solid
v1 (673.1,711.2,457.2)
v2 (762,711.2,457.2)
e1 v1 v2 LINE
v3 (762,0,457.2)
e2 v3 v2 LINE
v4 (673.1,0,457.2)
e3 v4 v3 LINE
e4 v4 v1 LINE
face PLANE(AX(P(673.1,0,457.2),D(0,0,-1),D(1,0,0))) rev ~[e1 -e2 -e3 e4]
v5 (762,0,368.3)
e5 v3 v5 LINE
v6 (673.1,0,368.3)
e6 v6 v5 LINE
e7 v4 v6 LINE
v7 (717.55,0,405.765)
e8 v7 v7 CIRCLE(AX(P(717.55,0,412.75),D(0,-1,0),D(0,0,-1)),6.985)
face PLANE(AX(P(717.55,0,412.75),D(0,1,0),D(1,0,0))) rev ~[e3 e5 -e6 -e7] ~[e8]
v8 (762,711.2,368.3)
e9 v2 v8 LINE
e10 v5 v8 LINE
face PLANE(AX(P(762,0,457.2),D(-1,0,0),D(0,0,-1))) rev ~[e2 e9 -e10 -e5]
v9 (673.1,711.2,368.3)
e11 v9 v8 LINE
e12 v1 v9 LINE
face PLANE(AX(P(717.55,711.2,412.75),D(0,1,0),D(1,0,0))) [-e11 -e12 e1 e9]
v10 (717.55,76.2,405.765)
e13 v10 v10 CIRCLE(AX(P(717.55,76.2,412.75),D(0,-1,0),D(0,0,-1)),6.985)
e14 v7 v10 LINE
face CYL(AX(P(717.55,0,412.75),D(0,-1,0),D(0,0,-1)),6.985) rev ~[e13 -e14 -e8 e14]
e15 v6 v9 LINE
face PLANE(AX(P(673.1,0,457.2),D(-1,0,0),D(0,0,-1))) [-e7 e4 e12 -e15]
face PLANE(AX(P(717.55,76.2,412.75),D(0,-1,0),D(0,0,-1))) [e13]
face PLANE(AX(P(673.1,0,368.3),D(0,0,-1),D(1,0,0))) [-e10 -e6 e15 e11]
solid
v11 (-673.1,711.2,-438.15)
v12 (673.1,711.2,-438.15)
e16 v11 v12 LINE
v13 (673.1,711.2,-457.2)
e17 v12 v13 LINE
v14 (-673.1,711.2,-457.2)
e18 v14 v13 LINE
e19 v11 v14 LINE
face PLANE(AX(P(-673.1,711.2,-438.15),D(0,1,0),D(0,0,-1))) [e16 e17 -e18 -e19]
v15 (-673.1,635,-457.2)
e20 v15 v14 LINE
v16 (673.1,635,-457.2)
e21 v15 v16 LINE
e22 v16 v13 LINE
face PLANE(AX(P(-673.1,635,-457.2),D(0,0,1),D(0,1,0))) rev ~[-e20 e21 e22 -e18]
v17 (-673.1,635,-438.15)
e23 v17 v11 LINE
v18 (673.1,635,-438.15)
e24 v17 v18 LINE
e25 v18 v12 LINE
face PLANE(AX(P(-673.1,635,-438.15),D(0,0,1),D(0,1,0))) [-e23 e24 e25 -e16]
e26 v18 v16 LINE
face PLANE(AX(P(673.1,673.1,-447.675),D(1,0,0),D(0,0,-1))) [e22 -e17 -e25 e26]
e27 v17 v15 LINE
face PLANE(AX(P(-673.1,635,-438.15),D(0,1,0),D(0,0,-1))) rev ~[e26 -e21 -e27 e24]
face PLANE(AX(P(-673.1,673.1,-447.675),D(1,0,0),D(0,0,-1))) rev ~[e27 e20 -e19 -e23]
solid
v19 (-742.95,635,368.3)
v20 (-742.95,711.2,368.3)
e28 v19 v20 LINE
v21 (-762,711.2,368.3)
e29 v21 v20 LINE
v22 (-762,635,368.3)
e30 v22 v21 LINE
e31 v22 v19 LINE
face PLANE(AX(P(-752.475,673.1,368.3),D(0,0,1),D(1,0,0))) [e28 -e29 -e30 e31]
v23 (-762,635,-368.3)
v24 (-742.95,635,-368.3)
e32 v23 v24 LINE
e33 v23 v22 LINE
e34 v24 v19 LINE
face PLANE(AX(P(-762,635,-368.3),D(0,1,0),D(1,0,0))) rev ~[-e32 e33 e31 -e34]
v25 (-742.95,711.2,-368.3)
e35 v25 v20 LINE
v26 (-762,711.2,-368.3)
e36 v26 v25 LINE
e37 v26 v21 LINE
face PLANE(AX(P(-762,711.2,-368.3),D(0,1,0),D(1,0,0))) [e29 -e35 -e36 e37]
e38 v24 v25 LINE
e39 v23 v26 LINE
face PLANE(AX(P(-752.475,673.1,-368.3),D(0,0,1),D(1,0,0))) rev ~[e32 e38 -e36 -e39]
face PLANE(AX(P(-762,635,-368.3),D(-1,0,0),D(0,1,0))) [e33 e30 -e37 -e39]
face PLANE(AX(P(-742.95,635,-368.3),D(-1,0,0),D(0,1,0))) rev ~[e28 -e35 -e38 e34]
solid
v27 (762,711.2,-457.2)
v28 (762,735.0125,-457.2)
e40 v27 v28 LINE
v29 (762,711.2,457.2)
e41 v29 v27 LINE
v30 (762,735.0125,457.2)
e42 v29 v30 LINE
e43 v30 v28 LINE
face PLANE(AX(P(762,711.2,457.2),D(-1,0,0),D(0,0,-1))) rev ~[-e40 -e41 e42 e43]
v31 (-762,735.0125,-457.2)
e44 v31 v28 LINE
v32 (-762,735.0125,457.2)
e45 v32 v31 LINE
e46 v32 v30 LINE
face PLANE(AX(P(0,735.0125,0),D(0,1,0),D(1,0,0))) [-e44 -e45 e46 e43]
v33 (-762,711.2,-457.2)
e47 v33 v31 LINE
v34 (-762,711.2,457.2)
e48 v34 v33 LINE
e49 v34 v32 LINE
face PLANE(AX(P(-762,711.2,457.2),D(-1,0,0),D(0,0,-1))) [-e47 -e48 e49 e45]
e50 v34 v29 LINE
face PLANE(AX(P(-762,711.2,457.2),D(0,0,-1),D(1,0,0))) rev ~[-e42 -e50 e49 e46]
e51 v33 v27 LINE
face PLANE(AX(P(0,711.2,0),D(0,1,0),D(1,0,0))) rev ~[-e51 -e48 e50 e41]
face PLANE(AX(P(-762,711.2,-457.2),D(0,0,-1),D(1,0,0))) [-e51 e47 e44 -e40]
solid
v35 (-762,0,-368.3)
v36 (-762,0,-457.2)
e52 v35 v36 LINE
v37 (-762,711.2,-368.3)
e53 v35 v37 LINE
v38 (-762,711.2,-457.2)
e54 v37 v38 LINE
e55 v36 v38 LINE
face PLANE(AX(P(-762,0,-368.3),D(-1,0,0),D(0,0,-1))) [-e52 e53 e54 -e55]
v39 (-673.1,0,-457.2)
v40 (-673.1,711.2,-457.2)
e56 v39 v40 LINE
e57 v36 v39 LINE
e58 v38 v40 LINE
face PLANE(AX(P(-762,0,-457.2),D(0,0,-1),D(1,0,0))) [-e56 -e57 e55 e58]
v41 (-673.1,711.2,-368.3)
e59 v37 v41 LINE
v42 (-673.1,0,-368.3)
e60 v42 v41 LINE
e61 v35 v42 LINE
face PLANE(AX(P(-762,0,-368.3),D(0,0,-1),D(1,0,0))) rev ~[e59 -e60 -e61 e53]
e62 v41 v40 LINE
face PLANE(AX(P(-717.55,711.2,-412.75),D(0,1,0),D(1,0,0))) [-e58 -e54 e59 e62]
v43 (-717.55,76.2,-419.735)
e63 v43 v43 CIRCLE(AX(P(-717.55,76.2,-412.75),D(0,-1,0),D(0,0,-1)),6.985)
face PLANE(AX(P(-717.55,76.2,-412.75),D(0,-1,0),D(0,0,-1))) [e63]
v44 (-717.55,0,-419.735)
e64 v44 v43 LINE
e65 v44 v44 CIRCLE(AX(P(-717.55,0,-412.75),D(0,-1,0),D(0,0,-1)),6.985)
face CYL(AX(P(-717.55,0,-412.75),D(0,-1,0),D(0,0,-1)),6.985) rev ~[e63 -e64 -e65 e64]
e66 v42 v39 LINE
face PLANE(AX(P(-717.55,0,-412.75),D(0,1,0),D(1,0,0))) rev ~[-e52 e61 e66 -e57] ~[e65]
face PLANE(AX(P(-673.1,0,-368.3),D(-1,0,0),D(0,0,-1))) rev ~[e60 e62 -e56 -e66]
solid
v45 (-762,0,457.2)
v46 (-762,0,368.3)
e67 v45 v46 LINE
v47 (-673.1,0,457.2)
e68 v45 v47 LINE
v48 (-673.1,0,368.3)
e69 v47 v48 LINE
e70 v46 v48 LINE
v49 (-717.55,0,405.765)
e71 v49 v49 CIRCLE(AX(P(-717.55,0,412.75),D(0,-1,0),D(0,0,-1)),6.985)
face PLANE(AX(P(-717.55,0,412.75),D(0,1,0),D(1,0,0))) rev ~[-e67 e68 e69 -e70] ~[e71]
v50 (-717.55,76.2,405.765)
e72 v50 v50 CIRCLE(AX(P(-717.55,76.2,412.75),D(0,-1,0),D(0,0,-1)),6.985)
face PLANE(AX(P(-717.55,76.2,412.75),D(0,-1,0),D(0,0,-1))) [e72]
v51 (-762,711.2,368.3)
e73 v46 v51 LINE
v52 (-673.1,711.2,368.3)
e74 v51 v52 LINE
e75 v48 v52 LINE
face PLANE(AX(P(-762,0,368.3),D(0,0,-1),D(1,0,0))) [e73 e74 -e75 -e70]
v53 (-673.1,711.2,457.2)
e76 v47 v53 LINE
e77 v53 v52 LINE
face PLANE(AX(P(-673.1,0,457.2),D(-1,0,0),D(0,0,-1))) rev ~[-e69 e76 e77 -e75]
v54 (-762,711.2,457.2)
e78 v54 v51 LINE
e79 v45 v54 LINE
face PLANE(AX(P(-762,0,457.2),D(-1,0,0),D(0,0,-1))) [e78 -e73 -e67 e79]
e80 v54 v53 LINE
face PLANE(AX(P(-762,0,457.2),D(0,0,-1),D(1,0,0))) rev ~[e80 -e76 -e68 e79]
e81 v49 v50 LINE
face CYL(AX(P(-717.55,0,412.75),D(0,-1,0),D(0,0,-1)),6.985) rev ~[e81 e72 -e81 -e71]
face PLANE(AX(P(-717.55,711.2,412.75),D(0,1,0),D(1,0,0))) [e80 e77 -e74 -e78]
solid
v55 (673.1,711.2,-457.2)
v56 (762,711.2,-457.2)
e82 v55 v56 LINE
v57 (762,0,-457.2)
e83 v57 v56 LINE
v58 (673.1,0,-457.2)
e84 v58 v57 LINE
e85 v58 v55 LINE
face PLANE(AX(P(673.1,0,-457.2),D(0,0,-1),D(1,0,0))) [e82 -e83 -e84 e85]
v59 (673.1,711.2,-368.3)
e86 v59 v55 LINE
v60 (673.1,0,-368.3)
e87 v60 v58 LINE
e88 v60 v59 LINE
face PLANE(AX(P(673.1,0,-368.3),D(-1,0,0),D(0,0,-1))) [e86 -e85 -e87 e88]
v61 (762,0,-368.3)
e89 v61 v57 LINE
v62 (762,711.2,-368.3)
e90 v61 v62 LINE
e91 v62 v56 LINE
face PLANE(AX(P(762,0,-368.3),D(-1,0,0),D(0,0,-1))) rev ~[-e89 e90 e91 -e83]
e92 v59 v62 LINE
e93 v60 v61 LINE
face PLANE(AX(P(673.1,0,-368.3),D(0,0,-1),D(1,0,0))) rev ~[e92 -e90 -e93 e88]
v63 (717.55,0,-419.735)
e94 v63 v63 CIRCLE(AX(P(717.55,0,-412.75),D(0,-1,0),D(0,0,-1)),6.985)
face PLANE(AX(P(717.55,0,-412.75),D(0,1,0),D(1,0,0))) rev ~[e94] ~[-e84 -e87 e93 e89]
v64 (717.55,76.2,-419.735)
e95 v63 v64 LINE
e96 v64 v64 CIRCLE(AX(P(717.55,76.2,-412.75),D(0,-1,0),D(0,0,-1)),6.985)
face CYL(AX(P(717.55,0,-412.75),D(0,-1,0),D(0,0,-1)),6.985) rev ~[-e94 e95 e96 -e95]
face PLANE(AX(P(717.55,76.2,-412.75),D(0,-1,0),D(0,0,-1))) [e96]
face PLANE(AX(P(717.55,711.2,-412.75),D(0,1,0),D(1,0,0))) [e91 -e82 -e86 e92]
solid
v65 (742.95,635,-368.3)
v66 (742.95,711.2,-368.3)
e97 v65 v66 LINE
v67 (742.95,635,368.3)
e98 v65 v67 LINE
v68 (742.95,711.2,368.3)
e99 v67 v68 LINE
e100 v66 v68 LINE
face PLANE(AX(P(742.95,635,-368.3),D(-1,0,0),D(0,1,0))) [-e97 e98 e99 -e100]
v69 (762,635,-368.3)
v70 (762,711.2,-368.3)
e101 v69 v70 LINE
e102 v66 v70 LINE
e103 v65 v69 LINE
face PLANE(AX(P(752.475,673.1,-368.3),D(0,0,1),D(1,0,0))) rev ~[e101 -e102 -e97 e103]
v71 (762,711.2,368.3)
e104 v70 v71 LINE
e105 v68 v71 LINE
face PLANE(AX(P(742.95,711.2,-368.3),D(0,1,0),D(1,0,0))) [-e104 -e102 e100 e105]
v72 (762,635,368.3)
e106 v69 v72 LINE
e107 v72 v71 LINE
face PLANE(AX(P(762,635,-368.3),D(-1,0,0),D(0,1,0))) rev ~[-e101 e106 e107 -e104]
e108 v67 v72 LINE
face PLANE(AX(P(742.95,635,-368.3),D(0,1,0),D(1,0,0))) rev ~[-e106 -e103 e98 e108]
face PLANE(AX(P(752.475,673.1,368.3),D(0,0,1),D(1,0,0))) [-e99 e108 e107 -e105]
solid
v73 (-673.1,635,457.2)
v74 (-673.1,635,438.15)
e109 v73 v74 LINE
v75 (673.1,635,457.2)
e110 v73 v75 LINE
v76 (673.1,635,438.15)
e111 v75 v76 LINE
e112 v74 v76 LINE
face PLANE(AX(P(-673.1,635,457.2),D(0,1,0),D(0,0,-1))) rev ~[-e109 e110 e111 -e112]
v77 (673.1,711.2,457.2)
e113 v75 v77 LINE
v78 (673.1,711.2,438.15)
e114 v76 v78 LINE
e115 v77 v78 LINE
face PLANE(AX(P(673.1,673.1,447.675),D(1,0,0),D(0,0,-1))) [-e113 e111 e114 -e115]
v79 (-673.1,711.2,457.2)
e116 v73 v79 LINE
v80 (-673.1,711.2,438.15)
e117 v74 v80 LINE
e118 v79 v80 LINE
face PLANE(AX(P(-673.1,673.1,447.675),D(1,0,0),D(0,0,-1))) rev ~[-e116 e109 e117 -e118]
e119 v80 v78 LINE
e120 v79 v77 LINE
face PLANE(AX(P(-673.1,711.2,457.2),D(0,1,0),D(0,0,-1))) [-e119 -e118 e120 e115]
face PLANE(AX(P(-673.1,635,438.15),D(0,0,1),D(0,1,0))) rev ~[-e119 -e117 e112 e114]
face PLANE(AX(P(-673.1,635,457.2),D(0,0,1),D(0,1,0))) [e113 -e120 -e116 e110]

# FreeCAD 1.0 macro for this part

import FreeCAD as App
import Part
import Sketcher

V = App.Vector
Q = App.Units.Quantity


def add_polygon(sketch, points):
    """Adds a closed chain of lines whose ends are joined by coincident constraints."""
    first, n = sketch.GeometryCount, len(points)
    for a, b in zip(points, points[1:] + points[:1]):
        sketch.addGeometry(Part.LineSegment(App.Vector(*a, 0), App.Vector(*b, 0)), False)
    for i in range(n):
        sketch.addConstraint(Sketcher.Constraint("Coincident", first + i, 2, first + (i + 1) % n, 1))

doc = App.newDocument("Part")
params = doc.addObject("Spreadsheet::Sheet", "Params")
for row, (alias, value) in enumerate([
    ("sketch1_width", "3.5 in"),
    ("pad1_length", "28 in"),
    ("sketch2_width", "3.5 in"),
    ("pad2_length", "28 in"),
    ("sketch3_width", "3.5 in"),
    ("pad3_length", "28 in"),
    ("sketch4_width", "3.5 in"),
    ("pad4_length", "28 in"),
    ("sketch5_width", "60 in"),
    ("sketch5_height", "36 in"),
    ("pad5_length", "0.9375 in"),
    ("sketch6_height", "3 in"),
    ("sketch6_width", "0.75 in"),
    ("pad6_length", "29 in"),
    ("sketch7_height", "3 in"),
    ("sketch7_width", "0.75 in"),
    ("pad7_length", "29 in"),
    ("sketch8_width", "3 in"),
    ("sketch8_height", "0.75 in"),
    ("pad8_length", "53 in"),
    ("sketch9_width", "3 in"),
    ("sketch9_height", "0.75 in"),
    ("pad9_length", "53 in"),
    ("sketch10_diameter", "0.55 in"),
    ("pad10_length", "3 in"),
], start=1):
    params.set(f"A{row}", alias)
    params.set(f"B{row}", "=" + value)
    params.setAlias(f"B{row}", alias)

body = doc.addObject("PartDesign::Body", "Body")

# Sketch on XZ plane
sketch1 = body.newObject("Sketcher::SketchObject", "Sketch")
sketch1.AttachmentSupport = (doc.getObject("XZ_Plane"), [""])
sketch1.MapMode = "FlatFace"
add_polygon(sketch1, [(-762, -457), (-762, -368), (-673, -368), (-673, -457)])  # lines 0-3
sketch1.addConstraint(Sketcher.Constraint("Vertical", 0))
sketch1.addConstraint(Sketcher.Constraint("Horizontal", 1))
sketch1.addConstraint(Sketcher.Constraint("Vertical", 2))
sketch1.addConstraint(Sketcher.Constraint("Horizontal", 3))
sketch1.addConstraint(Sketcher.Constraint("Equal", 3, 0))
sketch1.addConstraint(Sketcher.Constraint("DistanceX", 1, 1, 1, 2, Q("3.5 in")))
sketch1.addConstraint(Sketcher.Constraint("DistanceX", 0, 2, -1, 1, Q("30 in")))
sketch1.addConstraint(Sketcher.Constraint("DistanceY", 2, 2, -1, 1, Q("18 in")))
sketch1.setExpression("Constraints[9]", "Params.sketch1_width")
pad1 = body.newObject("PartDesign::Pad", "Pad")
pad1.Profile = sketch1
pad1.setExpression("Length", "Params.pad1_length")
pad1.Reversed = True
body2 = doc.addObject("PartDesign::Body", "Body001")

# Sketch on XZ plane
sketch2 = body2.newObject("Sketcher::SketchObject", "Sketch001")
sketch2.AttachmentSupport = (doc.getObject("XZ_Plane001"), [""])
sketch2.MapMode = "FlatFace"
add_polygon(sketch2, [(673, -457), (673, -368), (762, -368), (762, -457)])  # lines 0-3
sketch2.addConstraint(Sketcher.Constraint("Vertical", 0))
sketch2.addConstraint(Sketcher.Constraint("Horizontal", 1))
sketch2.addConstraint(Sketcher.Constraint("Vertical", 2))
sketch2.addConstraint(Sketcher.Constraint("Horizontal", 3))
sketch2.addConstraint(Sketcher.Constraint("Equal", 3, 0))
sketch2.addConstraint(Sketcher.Constraint("DistanceX", 1, 1, 1, 2, Q("3.5 in")))
sketch2.addConstraint(Sketcher.Constraint("DistanceX", -1, 1, 1, 2, Q("30 in")))
sketch2.addConstraint(Sketcher.Constraint("DistanceY", 2, 2, -1, 1, Q("18 in")))
sketch2.setExpression("Constraints[9]", "Params.sketch2_width")
pad2 = body2.newObject("PartDesign::Pad", "Pad001")
pad2.Profile = sketch2
pad2.setExpression("Length", "Params.pad2_length")
pad2.Reversed = True
body3 = doc.addObject("PartDesign::Body", "Body002")

# Sketch on XZ plane
sketch3 = body3.newObject("Sketcher::SketchObject", "Sketch002")
sketch3.AttachmentSupport = (doc.getObject("XZ_Plane002"), [""])
sketch3.MapMode = "FlatFace"
add_polygon(sketch3, [(673, 368), (673, 457), (762, 457), (762, 368)])  # lines 0-3
sketch3.addConstraint(Sketcher.Constraint("Vertical", 0))
sketch3.addConstraint(Sketcher.Constraint("Horizontal", 1))
sketch3.addConstraint(Sketcher.Constraint("Vertical", 2))
sketch3.addConstraint(Sketcher.Constraint("Horizontal", 3))
sketch3.addConstraint(Sketcher.Constraint("Equal", 3, 0))
sketch3.addConstraint(Sketcher.Constraint("DistanceX", 1, 1, 1, 2, Q("3.5 in")))
sketch3.addConstraint(Sketcher.Constraint("DistanceY", -1, 1, 0, 2, Q("18 in")))
sketch3.addConstraint(Sketcher.Constraint("DistanceX", -1, 1, 1, 2, Q("30 in")))
sketch3.setExpression("Constraints[9]", "Params.sketch3_width")
pad3 = body3.newObject("PartDesign::Pad", "Pad002")
pad3.Profile = sketch3
pad3.setExpression("Length", "Params.pad3_length")
pad3.Reversed = True
body4 = doc.addObject("PartDesign::Body", "Body003")

# Sketch on XZ plane
sketch4 = body4.newObject("Sketcher::SketchObject", "Sketch003")
sketch4.AttachmentSupport = (doc.getObject("XZ_Plane003"), [""])
sketch4.MapMode = "FlatFace"
add_polygon(sketch4, [(-762, 368), (-762, 457), (-673, 457), (-673, 368)])  # lines 0-3
sketch4.addConstraint(Sketcher.Constraint("Vertical", 0))
sketch4.addConstraint(Sketcher.Constraint("Horizontal", 1))
sketch4.addConstraint(Sketcher.Constraint("Vertical", 2))
sketch4.addConstraint(Sketcher.Constraint("Horizontal", 3))
sketch4.addConstraint(Sketcher.Constraint("Equal", 3, 0))
sketch4.addConstraint(Sketcher.Constraint("DistanceX", 1, 1, 1, 2, Q("3.5 in")))
sketch4.addConstraint(Sketcher.Constraint("DistanceX", 0, 2, -1, 1, Q("30 in")))
sketch4.addConstraint(Sketcher.Constraint("DistanceY", -1, 1, 0, 2, Q("18 in")))
sketch4.setExpression("Constraints[9]", "Params.sketch4_width")
pad4 = body4.newObject("PartDesign::Pad", "Pad003")
pad4.Profile = sketch4
pad4.setExpression("Length", "Params.pad4_length")
pad4.Reversed = True
body5 = doc.addObject("PartDesign::Body", "Body004")

# Sketch on XZ plane
sketch5 = body5.newObject("Sketcher::SketchObject", "Sketch004")
sketch5.AttachmentSupport = (doc.getObject("XZ_Plane004"), [""])
sketch5.MapMode = "FlatFace"
sketch5.AttachmentOffset = App.Placement(V(0, 0, -28 * 25.4), App.Rotation())
add_polygon(sketch5, [(-762, -457), (-762, 457), (762, 457), (762, -457)])  # lines 0-3
sketch5.addConstraint(Sketcher.Constraint("Vertical", 0))
sketch5.addConstraint(Sketcher.Constraint("Horizontal", 1))
sketch5.addConstraint(Sketcher.Constraint("Vertical", 2))
sketch5.addConstraint(Sketcher.Constraint("Horizontal", 3))
sketch5.addConstraint(Sketcher.Constraint("Symmetric", 0, 2, 2, 2, -1, 1))
sketch5.addConstraint(Sketcher.Constraint("DistanceX", 1, 1, 1, 2, Q("60 in")))
sketch5.addConstraint(Sketcher.Constraint("DistanceY", 0, 1, 0, 2, Q("36 in")))
sketch5.setExpression("Constraints[9]", "Params.sketch5_width")
sketch5.setExpression("Constraints[10]", "Params.sketch5_height")
pad5 = body5.newObject("PartDesign::Pad", "Pad004")
pad5.Profile = sketch5
pad5.setExpression("Length", "Params.pad5_length")
pad5.Reversed = True
body6 = doc.addObject("PartDesign::Body", "Body005")

# Sketch on XY plane
sketch6 = body6.newObject("Sketcher::SketchObject", "Sketch005")
sketch6.AttachmentSupport = (doc.getObject("XY_Plane005"), [""])
sketch6.MapMode = "FlatFace"
sketch6.AttachmentOffset = App.Placement(V(0, 0, -14.5 * 25.4), App.Rotation())
add_polygon(sketch6, [(-762, 711), (-762, 635), (-743, 635), (-743, 711)])  # lines 0-3
sketch6.addConstraint(Sketcher.Constraint("Vertical", 0))
sketch6.addConstraint(Sketcher.Constraint("Horizontal", 1))
sketch6.addConstraint(Sketcher.Constraint("Vertical", 2))
sketch6.addConstraint(Sketcher.Constraint("Horizontal", 3))
sketch6.addConstraint(Sketcher.Constraint("DistanceY", 0, 2, 0, 1, Q("3 in")))
sketch6.addConstraint(Sketcher.Constraint("DistanceX", 0, 2, -1, 1, Q("30 in")))
sketch6.addConstraint(Sketcher.Constraint("DistanceY", -1, 1, 0, 2, Q("25 in")))
sketch6.addConstraint(Sketcher.Constraint("DistanceX", 1, 1, 1, 2, Q("0.75 in")))
sketch6.setExpression("Constraints[8]", "Params.sketch6_height")
sketch6.setExpression("Constraints[11]", "Params.sketch6_width")
pad6 = body6.newObject("PartDesign::Pad", "Pad005")
pad6.Profile = sketch6
pad6.setExpression("Length", "Params.pad6_length")
body7 = doc.addObject("PartDesign::Body", "Body006")

# Sketch on XY plane
sketch7 = body7.newObject("Sketcher::SketchObject", "Sketch006")
sketch7.AttachmentSupport = (doc.getObject("XY_Plane006"), [""])
sketch7.MapMode = "FlatFace"
sketch7.AttachmentOffset = App.Placement(V(0, 0, -14.5 * 25.4), App.Rotation())
add_polygon(sketch7, [(743, 711), (743, 635), (762, 635), (762, 711)])  # lines 0-3
sketch7.addConstraint(Sketcher.Constraint("Vertical", 0))
sketch7.addConstraint(Sketcher.Constraint("Horizontal", 1))
sketch7.addConstraint(Sketcher.Constraint("Vertical", 2))
sketch7.addConstraint(Sketcher.Constraint("Horizontal", 3))
sketch7.addConstraint(Sketcher.Constraint("DistanceY", 0, 2, 0, 1, Q("3 in")))
sketch7.addConstraint(Sketcher.Constraint("DistanceY", -1, 1, 0, 2, Q("25 in")))
sketch7.addConstraint(Sketcher.Constraint("DistanceX", -1, 1, 1, 2, Q("30 in")))
sketch7.addConstraint(Sketcher.Constraint("DistanceX", 1, 1, 1, 2, Q("0.75 in")))
sketch7.setExpression("Constraints[8]", "Params.sketch7_height")
sketch7.setExpression("Constraints[11]", "Params.sketch7_width")
pad7 = body7.newObject("PartDesign::Pad", "Pad006")
pad7.Profile = sketch7
pad7.setExpression("Length", "Params.pad7_length")
body8 = doc.addObject("PartDesign::Body", "Body007")

# Sketch on YZ plane
sketch8 = body8.newObject("Sketcher::SketchObject", "Sketch007")
sketch8.AttachmentSupport = (doc.getObject("YZ_Plane007"), [""])
sketch8.MapMode = "FlatFace"
sketch8.AttachmentOffset = App.Placement(V(0, 0, -26.5 * 25.4), App.Rotation())
add_polygon(sketch8, [(711, 457), (635, 457), (635, 438), (711, 438)])  # lines 0-3
sketch8.addConstraint(Sketcher.Constraint("Horizontal", 0))
sketch8.addConstraint(Sketcher.Constraint("Vertical", 1))
sketch8.addConstraint(Sketcher.Constraint("Horizontal", 2))
sketch8.addConstraint(Sketcher.Constraint("Vertical", 3))
sketch8.addConstraint(Sketcher.Constraint("DistanceX", 0, 2, 0, 1, Q("3 in")))
sketch8.addConstraint(Sketcher.Constraint("DistanceX", -1, 1, 0, 2, Q("25 in")))
sketch8.addConstraint(Sketcher.Constraint("DistanceY", -1, 1, 0, 2, Q("18 in")))
sketch8.addConstraint(Sketcher.Constraint("DistanceY", 1, 2, 1, 1, Q("0.75 in")))
sketch8.setExpression("Constraints[8]", "Params.sketch8_width")
sketch8.setExpression("Constraints[11]", "Params.sketch8_height")
pad8 = body8.newObject("PartDesign::Pad", "Pad007")
pad8.Profile = sketch8
pad8.setExpression("Length", "Params.pad8_length")
body9 = doc.addObject("PartDesign::Body", "Body008")

# Sketch on YZ plane
sketch9 = body9.newObject("Sketcher::SketchObject", "Sketch008")
sketch9.AttachmentSupport = (doc.getObject("YZ_Plane008"), [""])
sketch9.MapMode = "FlatFace"
sketch9.AttachmentOffset = App.Placement(V(0, 0, -26.5 * 25.4), App.Rotation())
add_polygon(sketch9, [(711, -438), (635, -438), (635, -457), (711, -457)])  # lines 0-3
sketch9.addConstraint(Sketcher.Constraint("Horizontal", 0))
sketch9.addConstraint(Sketcher.Constraint("Vertical", 1))
sketch9.addConstraint(Sketcher.Constraint("Horizontal", 2))
sketch9.addConstraint(Sketcher.Constraint("Vertical", 3))
sketch9.addConstraint(Sketcher.Constraint("DistanceX", 0, 2, 0, 1, Q("3 in")))
sketch9.addConstraint(Sketcher.Constraint("DistanceX", -1, 1, 0, 2, Q("25 in")))
sketch9.addConstraint(Sketcher.Constraint("DistanceY", 1, 2, -1, 1, Q("18 in")))
sketch9.addConstraint(Sketcher.Constraint("DistanceY", 1, 2, 1, 1, Q("0.75 in")))
sketch9.setExpression("Constraints[8]", "Params.sketch9_width")
sketch9.setExpression("Constraints[11]", "Params.sketch9_height")
pad9 = body9.newObject("PartDesign::Pad", "Pad008")
pad9.Profile = sketch9
pad9.setExpression("Length", "Params.pad9_length")
body10 = doc.addObject("PartDesign::Body", "Body009")
body10.AllowCompound = True

# Sketch on XZ plane
sketch10 = body10.newObject("Sketcher::SketchObject", "Sketch009")
sketch10.AttachmentSupport = (doc.getObject("XZ_Plane009"), [""])
sketch10.MapMode = "FlatFace"
sketch10.addGeometry(Part.Circle(V(-718, 413, 0), V(0, 0, 1), 7), False)
sketch10.addGeometry(Part.Circle(V(-718, -413, 0), V(0, 0, 1), 7), False)
sketch10.addGeometry(Part.Circle(V(718, -413, 0), V(0, 0, 1), 7), False)
sketch10.addGeometry(Part.Circle(V(718, 413, 0), V(0, 0, 1), 7), False)
sketch10.addConstraint(Sketcher.Constraint("Equal", 0, 1))
sketch10.addConstraint(Sketcher.Constraint("Equal", 1, 2))
sketch10.addConstraint(Sketcher.Constraint("Equal", 2, 3))
sketch10.addConstraint(Sketcher.Constraint("Symmetric", 0, 3, 2, 3, -1, 1))
sketch10.addConstraint(Sketcher.Constraint("Symmetric", 1, 3, 3, 3, -1, 1))
sketch10.addConstraint(Sketcher.Constraint("Symmetric", 1, 3, 2, 3, -2))
sketch10.addConstraint(Sketcher.Constraint("Diameter", 0, Q("0.55 in")))
sketch10.addConstraint(Sketcher.Constraint("DistanceY", 1, 3, 0, 3, Q("32.5 in")))
sketch10.addConstraint(Sketcher.Constraint("DistanceX", 1, 3, 2, 3, Q("56.5 in")))
sketch10.setExpression("Constraints[6]", "Params.sketch10_diameter")
pad10 = body10.newObject("PartDesign::Pad", "Pad009")
pad10.Profile = sketch10
pad10.setExpression("Length", "Params.pad10_length")
pad10.Reversed = True
doc.recompute()

body11 = doc.addObject("PartDesign::Body", "Body010")
body11.BaseFeature = body10
boolean = body.newObject("PartDesign::Boolean", "Boolean")
boolean.Type = "Cut"
boolean.addObjects([body11])
doc.recompute()

body12 = doc.addObject("PartDesign::Body", "Body011")
body12.BaseFeature = body10
boolean2 = body2.newObject("PartDesign::Boolean", "Boolean001")
boolean2.Type = "Cut"
boolean2.addObjects([body12])
doc.recompute()

body13 = doc.addObject("PartDesign::Body", "Body012")
body13.BaseFeature = body10
boolean3 = body3.newObject("PartDesign::Boolean", "Boolean002")
boolean3.Type = "Cut"
boolean3.addObjects([body13])
doc.recompute()

boolean4 = body4.newObject("PartDesign::Boolean", "Boolean003")
boolean4.Type = "Cut"
boolean4.addObjects([body10])

doc.recompute()
